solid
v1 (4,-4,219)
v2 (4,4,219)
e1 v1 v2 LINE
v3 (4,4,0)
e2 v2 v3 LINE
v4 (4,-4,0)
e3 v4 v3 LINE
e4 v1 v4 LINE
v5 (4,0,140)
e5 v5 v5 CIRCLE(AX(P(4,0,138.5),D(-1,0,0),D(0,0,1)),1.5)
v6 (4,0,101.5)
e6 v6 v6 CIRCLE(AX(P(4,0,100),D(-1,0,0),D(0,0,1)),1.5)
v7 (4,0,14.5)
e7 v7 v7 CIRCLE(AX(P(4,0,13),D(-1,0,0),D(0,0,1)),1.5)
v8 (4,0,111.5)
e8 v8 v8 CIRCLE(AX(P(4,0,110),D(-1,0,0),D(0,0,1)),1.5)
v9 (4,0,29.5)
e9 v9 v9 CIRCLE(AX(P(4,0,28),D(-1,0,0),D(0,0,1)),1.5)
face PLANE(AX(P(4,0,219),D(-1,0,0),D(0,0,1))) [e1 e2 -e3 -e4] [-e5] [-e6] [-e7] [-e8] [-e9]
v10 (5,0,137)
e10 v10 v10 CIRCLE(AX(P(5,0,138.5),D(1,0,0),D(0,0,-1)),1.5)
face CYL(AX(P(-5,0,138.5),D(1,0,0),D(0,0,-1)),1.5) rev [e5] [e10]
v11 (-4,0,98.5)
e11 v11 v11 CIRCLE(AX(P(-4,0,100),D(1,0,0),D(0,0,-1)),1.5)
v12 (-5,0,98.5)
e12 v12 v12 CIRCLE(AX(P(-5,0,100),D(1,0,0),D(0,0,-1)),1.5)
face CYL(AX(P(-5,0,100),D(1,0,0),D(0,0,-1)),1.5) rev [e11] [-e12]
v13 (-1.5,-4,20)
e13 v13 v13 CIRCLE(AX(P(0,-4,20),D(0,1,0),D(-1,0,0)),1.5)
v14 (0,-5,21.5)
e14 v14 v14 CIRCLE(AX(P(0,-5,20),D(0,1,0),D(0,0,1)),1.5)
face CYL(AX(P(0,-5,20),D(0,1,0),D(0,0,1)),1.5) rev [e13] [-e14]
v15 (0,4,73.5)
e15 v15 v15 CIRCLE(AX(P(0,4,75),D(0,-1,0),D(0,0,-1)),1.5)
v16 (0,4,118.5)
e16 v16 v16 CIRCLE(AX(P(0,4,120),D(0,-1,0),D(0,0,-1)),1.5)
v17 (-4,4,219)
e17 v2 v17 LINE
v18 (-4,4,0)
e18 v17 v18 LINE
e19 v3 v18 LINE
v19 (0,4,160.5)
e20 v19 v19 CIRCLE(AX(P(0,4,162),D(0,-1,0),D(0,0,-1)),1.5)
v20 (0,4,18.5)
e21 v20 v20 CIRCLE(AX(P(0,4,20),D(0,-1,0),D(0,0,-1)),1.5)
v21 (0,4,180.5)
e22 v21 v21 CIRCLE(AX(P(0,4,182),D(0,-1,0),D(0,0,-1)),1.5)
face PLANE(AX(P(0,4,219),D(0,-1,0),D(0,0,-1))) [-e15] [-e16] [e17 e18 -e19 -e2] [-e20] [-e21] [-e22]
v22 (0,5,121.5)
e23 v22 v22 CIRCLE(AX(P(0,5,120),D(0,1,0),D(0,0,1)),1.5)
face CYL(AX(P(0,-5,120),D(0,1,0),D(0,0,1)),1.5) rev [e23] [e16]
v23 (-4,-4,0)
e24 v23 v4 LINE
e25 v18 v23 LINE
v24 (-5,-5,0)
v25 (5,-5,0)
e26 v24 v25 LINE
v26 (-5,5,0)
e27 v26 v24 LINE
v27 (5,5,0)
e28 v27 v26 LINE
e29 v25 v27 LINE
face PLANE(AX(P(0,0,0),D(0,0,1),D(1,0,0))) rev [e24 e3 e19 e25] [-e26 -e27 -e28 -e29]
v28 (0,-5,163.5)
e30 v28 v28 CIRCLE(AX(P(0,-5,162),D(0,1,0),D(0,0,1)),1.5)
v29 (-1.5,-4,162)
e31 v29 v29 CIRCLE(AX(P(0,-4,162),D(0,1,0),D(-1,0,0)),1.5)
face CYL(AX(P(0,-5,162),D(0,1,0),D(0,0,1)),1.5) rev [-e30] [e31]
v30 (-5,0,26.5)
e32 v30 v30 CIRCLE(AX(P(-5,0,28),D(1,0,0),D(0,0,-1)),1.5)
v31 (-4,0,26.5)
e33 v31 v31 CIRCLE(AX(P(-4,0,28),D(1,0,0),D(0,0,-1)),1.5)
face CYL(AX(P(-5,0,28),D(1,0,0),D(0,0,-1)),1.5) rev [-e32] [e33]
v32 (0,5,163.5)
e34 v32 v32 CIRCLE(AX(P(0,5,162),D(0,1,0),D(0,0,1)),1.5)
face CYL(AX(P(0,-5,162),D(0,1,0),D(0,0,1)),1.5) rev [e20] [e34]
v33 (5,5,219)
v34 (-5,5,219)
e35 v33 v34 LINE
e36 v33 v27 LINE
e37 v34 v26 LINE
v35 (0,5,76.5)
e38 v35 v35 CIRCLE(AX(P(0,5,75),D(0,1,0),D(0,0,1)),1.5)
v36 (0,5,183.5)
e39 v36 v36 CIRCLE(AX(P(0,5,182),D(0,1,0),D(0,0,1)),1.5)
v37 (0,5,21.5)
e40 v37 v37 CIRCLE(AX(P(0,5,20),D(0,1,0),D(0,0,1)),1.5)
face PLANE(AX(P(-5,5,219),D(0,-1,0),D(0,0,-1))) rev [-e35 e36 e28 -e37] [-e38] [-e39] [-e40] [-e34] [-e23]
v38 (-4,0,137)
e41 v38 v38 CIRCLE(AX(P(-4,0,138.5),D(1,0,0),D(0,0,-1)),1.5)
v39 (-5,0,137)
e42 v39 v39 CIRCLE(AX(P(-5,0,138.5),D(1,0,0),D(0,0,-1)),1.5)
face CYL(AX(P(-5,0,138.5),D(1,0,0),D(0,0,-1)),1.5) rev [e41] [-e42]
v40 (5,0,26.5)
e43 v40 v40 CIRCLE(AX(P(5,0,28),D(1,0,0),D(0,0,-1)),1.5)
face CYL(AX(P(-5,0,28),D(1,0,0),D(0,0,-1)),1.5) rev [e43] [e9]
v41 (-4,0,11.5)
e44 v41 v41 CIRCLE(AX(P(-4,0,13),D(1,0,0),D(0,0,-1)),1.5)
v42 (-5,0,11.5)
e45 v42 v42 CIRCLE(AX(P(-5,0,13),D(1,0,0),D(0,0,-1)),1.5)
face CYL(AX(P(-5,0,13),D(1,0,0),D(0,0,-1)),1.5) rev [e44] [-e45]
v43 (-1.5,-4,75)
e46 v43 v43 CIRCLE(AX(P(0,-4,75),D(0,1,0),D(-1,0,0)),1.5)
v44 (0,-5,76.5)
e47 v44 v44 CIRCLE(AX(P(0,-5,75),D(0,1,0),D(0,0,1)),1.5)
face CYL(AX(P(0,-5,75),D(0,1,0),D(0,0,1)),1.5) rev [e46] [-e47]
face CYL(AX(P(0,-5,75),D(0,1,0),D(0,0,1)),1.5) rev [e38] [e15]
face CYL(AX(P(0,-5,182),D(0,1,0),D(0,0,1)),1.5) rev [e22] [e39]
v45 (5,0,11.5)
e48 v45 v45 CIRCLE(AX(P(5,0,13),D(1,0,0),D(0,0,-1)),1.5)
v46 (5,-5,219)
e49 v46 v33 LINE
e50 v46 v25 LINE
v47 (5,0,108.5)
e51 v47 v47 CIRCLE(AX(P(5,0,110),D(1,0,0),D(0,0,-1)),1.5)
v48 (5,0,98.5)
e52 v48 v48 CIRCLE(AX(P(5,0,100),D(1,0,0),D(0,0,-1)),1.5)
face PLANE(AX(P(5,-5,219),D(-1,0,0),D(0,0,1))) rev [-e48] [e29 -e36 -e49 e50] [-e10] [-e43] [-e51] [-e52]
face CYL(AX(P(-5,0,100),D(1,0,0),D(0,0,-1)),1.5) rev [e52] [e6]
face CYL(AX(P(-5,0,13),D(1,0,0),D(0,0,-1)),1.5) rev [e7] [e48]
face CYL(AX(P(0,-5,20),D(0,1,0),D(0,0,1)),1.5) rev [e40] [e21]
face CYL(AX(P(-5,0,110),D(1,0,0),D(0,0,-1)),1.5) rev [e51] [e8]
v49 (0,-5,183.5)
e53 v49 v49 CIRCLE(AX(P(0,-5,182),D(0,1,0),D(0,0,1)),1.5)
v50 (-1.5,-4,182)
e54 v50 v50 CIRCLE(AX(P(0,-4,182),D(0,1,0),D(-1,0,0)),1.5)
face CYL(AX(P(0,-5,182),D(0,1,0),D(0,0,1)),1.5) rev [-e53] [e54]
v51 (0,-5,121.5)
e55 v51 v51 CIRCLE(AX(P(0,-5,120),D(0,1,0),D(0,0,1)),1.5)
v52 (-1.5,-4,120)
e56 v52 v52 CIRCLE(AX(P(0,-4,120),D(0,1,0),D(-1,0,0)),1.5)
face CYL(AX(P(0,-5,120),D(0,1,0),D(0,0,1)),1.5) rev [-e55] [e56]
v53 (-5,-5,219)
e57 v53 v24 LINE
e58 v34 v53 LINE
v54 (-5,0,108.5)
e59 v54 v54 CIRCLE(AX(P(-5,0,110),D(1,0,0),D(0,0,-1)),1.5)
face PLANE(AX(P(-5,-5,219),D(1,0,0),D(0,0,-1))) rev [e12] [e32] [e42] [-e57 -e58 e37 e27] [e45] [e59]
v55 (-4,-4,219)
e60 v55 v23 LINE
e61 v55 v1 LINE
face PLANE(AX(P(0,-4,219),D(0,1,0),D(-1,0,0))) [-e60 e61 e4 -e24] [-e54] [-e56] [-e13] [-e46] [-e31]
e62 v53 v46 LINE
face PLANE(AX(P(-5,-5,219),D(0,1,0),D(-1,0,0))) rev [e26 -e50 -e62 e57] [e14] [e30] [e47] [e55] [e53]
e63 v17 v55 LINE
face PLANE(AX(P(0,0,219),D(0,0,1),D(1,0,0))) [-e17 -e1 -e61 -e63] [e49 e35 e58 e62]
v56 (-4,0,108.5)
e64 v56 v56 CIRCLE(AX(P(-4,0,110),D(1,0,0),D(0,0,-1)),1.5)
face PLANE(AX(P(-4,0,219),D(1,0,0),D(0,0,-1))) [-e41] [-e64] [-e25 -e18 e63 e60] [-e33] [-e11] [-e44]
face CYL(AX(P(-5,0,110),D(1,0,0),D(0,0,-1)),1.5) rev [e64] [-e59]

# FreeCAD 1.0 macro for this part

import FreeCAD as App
import Part
import Sketcher
Q = App.Units.Quantity


def add_polygon(sketch, points):
    """Adds a closed chain of lines whose ends are joined by coincident constraints."""
    first, n = sketch.GeometryCount, len(points)
    for a, b in zip(points, points[1:] + points[:1]):
        sketch.addGeometry(Part.LineSegment(App.Vector(*a, 0), App.Vector(*b, 0)), False)
    for i in range(n):
        sketch.addConstraint(Sketcher.Constraint("Coincident", first + i, 2, first + (i + 1) % n, 1))

doc = App.newDocument("Part")
body = doc.addObject("PartDesign::Body", "Body")

sketch1 = body.newObject("Sketcher::SketchObject", "Sketch")
sketch1.AttachmentSupport = (doc.getObject("XY_Plane"), [""])
sketch1.MapMode = "FlatFace"
add_polygon(sketch1, [(-5, 5), (-5, -5), (5, -5), (5, 5)])
add_polygon(sketch1, [(4, -4), (-4, -4), (-4, 4), (4, 4)])
sketch1.addConstraint(Sketcher.Constraint("Vertical", 0))
sketch1.addConstraint(Sketcher.Constraint("Horizontal", 1))
sketch1.addConstraint(Sketcher.Constraint("Vertical", 2))
sketch1.addConstraint(Sketcher.Constraint("Horizontal", 3))
sketch1.addConstraint(Sketcher.Constraint("Horizontal", 4))
sketch1.addConstraint(Sketcher.Constraint("Vertical", 5))
sketch1.addConstraint(Sketcher.Constraint("Horizontal", 6))
sketch1.addConstraint(Sketcher.Constraint("Vertical", 7))
sketch1.addConstraint(Sketcher.Constraint("Symmetric", 0, 2, 2, 2, -1, 1))
sketch1.addConstraint(Sketcher.Constraint("Symmetric", 4, 2, 6, 2, -1, 1))
sketch1.addConstraint(Sketcher.Constraint("Equal", 3, 0))
sketch1.addConstraint(Sketcher.Constraint("Equal", 6, 5))
sketch1.addConstraint(Sketcher.Constraint("DistanceX", 1, 1, 1, 2, Q("10 mm")))
sketch1.addConstraint(Sketcher.Constraint("DistanceX", 4, 2, 4, 1, Q("8 mm")))
pad1 = body.newObject("PartDesign::Pad", "Pad")
pad1.Profile = sketch1
pad1.Length = 219

sketch2 = body.newObject("Sketcher::SketchObject", "Sketch001")
sketch2.AttachmentSupport = (doc.getObject("XZ_Plane"), [""])
sketch2.MapMode = "FlatFace"
sketch2.AttachmentOffset = App.Placement(App.Vector(0, 0, -5), App.Rotation())
sketch2.addGeometry(Part.Circle(App.Vector(0, 182, 0), App.Vector(0, 0, 1), 1.5), False)
sketch2.addGeometry(Part.Circle(App.Vector(0, 20, 0), App.Vector(0, 0, 1), 1.5), False)
sketch2.addGeometry(Part.Circle(App.Vector(0, 120, 0), App.Vector(0, 0, 1), 1.5), False)
sketch2.addGeometry(Part.Circle(App.Vector(0, 162, 0), App.Vector(0, 0, 1), 1.5), False)
sketch2.addGeometry(Part.Circle(App.Vector(0, 75, 0), App.Vector(0, 0, 1), 1.5), False)
sketch2.addConstraint(Sketcher.Constraint("Equal", 0, 1))
sketch2.addConstraint(Sketcher.Constraint("Equal", 1, 2))
sketch2.addConstraint(Sketcher.Constraint("Equal", 2, 3))
sketch2.addConstraint(Sketcher.Constraint("Equal", 3, 4))
sketch2.addConstraint(Sketcher.Constraint("PointOnObject", 0, 3, -2))
sketch2.addConstraint(Sketcher.Constraint("PointOnObject", 1, 3, -2))
sketch2.addConstraint(Sketcher.Constraint("PointOnObject", 2, 3, -2))
sketch2.addConstraint(Sketcher.Constraint("PointOnObject", 3, 3, -2))
sketch2.addConstraint(Sketcher.Constraint("PointOnObject", 4, 3, -2))
sketch2.addConstraint(Sketcher.Constraint("Diameter", 0, Q("3 mm")))
sketch2.addConstraint(Sketcher.Constraint("DistanceY", -1, 1, 0, 3, Q("182 mm")))
sketch2.addConstraint(Sketcher.Constraint("DistanceY", -1, 1, 1, 3, Q("20 mm")))
sketch2.addConstraint(Sketcher.Constraint("DistanceY", -1, 1, 2, 3, Q("120 mm")))
sketch2.addConstraint(Sketcher.Constraint("DistanceY", -1, 1, 3, 3, Q("162 mm")))
sketch2.addConstraint(Sketcher.Constraint("DistanceY", -1, 1, 4, 3, Q("75 mm")))
pocket1 = body.newObject("PartDesign::Pocket", "Pocket")
pocket1.Profile = sketch2
pocket1.Length = 10
pocket1.Reversed = True

sketch3 = body.newObject("Sketcher::SketchObject", "Sketch002")
sketch3.AttachmentSupport = (doc.getObject("YZ_Plane"), [""])
sketch3.MapMode = "FlatFace"
sketch3.AttachmentOffset = App.Placement(App.Vector(0, 0, 5), App.Rotation())
sketch3.addGeometry(Part.Circle(App.Vector(0, 13, 0), App.Vector(0, 0, 1), 1.5), False)
sketch3.addGeometry(Part.Circle(App.Vector(0, 28, 0), App.Vector(0, 0, 1), 1.5), False)
sketch3.addGeometry(Part.Circle(App.Vector(0, 138.5, 0), App.Vector(0, 0, 1), 1.5), False)
sketch3.addGeometry(Part.Circle(App.Vector(0, 100, 0), App.Vector(0, 0, 1), 1.5), False)
sketch3.addGeometry(Part.Circle(App.Vector(0, 110, 0), App.Vector(0, 0, 1), 1.5), False)
sketch3.addConstraint(Sketcher.Constraint("Equal", 0, 1))
sketch3.addConstraint(Sketcher.Constraint("Equal", 1, 2))
sketch3.addConstraint(Sketcher.Constraint("Equal", 2, 3))
sketch3.addConstraint(Sketcher.Constraint("Equal", 3, 4))
sketch3.addConstraint(Sketcher.Constraint("PointOnObject", 0, 3, -2))
sketch3.addConstraint(Sketcher.Constraint("PointOnObject", 1, 3, -2))
sketch3.addConstraint(Sketcher.Constraint("PointOnObject", 2, 3, -2))
sketch3.addConstraint(Sketcher.Constraint("PointOnObject", 3, 3, -2))
sketch3.addConstraint(Sketcher.Constraint("PointOnObject", 4, 3, -2))
sketch3.addConstraint(Sketcher.Constraint("Diameter", 0, Q("3 mm")))
sketch3.addConstraint(Sketcher.Constraint("DistanceY", -1, 1, 0, 3, Q("13 mm")))
sketch3.addConstraint(Sketcher.Constraint("DistanceY", -1, 1, 1, 3, Q("28 mm")))
sketch3.addConstraint(Sketcher.Constraint("DistanceY", -1, 1, 3, 3, Q("100 mm")))
sketch3.addConstraint(Sketcher.Constraint("DistanceY", -1, 1, 4, 3, Q("110 mm")))
sketch3.addConstraint(Sketcher.Constraint("DistanceY", -1, 1, 2, 3, Q("138.5 mm")))
pocket2 = body.newObject("PartDesign::Pocket", "Pocket001")
pocket2.Profile = sketch3
pocket2.Type = "ThroughAll"

doc.recompute()
